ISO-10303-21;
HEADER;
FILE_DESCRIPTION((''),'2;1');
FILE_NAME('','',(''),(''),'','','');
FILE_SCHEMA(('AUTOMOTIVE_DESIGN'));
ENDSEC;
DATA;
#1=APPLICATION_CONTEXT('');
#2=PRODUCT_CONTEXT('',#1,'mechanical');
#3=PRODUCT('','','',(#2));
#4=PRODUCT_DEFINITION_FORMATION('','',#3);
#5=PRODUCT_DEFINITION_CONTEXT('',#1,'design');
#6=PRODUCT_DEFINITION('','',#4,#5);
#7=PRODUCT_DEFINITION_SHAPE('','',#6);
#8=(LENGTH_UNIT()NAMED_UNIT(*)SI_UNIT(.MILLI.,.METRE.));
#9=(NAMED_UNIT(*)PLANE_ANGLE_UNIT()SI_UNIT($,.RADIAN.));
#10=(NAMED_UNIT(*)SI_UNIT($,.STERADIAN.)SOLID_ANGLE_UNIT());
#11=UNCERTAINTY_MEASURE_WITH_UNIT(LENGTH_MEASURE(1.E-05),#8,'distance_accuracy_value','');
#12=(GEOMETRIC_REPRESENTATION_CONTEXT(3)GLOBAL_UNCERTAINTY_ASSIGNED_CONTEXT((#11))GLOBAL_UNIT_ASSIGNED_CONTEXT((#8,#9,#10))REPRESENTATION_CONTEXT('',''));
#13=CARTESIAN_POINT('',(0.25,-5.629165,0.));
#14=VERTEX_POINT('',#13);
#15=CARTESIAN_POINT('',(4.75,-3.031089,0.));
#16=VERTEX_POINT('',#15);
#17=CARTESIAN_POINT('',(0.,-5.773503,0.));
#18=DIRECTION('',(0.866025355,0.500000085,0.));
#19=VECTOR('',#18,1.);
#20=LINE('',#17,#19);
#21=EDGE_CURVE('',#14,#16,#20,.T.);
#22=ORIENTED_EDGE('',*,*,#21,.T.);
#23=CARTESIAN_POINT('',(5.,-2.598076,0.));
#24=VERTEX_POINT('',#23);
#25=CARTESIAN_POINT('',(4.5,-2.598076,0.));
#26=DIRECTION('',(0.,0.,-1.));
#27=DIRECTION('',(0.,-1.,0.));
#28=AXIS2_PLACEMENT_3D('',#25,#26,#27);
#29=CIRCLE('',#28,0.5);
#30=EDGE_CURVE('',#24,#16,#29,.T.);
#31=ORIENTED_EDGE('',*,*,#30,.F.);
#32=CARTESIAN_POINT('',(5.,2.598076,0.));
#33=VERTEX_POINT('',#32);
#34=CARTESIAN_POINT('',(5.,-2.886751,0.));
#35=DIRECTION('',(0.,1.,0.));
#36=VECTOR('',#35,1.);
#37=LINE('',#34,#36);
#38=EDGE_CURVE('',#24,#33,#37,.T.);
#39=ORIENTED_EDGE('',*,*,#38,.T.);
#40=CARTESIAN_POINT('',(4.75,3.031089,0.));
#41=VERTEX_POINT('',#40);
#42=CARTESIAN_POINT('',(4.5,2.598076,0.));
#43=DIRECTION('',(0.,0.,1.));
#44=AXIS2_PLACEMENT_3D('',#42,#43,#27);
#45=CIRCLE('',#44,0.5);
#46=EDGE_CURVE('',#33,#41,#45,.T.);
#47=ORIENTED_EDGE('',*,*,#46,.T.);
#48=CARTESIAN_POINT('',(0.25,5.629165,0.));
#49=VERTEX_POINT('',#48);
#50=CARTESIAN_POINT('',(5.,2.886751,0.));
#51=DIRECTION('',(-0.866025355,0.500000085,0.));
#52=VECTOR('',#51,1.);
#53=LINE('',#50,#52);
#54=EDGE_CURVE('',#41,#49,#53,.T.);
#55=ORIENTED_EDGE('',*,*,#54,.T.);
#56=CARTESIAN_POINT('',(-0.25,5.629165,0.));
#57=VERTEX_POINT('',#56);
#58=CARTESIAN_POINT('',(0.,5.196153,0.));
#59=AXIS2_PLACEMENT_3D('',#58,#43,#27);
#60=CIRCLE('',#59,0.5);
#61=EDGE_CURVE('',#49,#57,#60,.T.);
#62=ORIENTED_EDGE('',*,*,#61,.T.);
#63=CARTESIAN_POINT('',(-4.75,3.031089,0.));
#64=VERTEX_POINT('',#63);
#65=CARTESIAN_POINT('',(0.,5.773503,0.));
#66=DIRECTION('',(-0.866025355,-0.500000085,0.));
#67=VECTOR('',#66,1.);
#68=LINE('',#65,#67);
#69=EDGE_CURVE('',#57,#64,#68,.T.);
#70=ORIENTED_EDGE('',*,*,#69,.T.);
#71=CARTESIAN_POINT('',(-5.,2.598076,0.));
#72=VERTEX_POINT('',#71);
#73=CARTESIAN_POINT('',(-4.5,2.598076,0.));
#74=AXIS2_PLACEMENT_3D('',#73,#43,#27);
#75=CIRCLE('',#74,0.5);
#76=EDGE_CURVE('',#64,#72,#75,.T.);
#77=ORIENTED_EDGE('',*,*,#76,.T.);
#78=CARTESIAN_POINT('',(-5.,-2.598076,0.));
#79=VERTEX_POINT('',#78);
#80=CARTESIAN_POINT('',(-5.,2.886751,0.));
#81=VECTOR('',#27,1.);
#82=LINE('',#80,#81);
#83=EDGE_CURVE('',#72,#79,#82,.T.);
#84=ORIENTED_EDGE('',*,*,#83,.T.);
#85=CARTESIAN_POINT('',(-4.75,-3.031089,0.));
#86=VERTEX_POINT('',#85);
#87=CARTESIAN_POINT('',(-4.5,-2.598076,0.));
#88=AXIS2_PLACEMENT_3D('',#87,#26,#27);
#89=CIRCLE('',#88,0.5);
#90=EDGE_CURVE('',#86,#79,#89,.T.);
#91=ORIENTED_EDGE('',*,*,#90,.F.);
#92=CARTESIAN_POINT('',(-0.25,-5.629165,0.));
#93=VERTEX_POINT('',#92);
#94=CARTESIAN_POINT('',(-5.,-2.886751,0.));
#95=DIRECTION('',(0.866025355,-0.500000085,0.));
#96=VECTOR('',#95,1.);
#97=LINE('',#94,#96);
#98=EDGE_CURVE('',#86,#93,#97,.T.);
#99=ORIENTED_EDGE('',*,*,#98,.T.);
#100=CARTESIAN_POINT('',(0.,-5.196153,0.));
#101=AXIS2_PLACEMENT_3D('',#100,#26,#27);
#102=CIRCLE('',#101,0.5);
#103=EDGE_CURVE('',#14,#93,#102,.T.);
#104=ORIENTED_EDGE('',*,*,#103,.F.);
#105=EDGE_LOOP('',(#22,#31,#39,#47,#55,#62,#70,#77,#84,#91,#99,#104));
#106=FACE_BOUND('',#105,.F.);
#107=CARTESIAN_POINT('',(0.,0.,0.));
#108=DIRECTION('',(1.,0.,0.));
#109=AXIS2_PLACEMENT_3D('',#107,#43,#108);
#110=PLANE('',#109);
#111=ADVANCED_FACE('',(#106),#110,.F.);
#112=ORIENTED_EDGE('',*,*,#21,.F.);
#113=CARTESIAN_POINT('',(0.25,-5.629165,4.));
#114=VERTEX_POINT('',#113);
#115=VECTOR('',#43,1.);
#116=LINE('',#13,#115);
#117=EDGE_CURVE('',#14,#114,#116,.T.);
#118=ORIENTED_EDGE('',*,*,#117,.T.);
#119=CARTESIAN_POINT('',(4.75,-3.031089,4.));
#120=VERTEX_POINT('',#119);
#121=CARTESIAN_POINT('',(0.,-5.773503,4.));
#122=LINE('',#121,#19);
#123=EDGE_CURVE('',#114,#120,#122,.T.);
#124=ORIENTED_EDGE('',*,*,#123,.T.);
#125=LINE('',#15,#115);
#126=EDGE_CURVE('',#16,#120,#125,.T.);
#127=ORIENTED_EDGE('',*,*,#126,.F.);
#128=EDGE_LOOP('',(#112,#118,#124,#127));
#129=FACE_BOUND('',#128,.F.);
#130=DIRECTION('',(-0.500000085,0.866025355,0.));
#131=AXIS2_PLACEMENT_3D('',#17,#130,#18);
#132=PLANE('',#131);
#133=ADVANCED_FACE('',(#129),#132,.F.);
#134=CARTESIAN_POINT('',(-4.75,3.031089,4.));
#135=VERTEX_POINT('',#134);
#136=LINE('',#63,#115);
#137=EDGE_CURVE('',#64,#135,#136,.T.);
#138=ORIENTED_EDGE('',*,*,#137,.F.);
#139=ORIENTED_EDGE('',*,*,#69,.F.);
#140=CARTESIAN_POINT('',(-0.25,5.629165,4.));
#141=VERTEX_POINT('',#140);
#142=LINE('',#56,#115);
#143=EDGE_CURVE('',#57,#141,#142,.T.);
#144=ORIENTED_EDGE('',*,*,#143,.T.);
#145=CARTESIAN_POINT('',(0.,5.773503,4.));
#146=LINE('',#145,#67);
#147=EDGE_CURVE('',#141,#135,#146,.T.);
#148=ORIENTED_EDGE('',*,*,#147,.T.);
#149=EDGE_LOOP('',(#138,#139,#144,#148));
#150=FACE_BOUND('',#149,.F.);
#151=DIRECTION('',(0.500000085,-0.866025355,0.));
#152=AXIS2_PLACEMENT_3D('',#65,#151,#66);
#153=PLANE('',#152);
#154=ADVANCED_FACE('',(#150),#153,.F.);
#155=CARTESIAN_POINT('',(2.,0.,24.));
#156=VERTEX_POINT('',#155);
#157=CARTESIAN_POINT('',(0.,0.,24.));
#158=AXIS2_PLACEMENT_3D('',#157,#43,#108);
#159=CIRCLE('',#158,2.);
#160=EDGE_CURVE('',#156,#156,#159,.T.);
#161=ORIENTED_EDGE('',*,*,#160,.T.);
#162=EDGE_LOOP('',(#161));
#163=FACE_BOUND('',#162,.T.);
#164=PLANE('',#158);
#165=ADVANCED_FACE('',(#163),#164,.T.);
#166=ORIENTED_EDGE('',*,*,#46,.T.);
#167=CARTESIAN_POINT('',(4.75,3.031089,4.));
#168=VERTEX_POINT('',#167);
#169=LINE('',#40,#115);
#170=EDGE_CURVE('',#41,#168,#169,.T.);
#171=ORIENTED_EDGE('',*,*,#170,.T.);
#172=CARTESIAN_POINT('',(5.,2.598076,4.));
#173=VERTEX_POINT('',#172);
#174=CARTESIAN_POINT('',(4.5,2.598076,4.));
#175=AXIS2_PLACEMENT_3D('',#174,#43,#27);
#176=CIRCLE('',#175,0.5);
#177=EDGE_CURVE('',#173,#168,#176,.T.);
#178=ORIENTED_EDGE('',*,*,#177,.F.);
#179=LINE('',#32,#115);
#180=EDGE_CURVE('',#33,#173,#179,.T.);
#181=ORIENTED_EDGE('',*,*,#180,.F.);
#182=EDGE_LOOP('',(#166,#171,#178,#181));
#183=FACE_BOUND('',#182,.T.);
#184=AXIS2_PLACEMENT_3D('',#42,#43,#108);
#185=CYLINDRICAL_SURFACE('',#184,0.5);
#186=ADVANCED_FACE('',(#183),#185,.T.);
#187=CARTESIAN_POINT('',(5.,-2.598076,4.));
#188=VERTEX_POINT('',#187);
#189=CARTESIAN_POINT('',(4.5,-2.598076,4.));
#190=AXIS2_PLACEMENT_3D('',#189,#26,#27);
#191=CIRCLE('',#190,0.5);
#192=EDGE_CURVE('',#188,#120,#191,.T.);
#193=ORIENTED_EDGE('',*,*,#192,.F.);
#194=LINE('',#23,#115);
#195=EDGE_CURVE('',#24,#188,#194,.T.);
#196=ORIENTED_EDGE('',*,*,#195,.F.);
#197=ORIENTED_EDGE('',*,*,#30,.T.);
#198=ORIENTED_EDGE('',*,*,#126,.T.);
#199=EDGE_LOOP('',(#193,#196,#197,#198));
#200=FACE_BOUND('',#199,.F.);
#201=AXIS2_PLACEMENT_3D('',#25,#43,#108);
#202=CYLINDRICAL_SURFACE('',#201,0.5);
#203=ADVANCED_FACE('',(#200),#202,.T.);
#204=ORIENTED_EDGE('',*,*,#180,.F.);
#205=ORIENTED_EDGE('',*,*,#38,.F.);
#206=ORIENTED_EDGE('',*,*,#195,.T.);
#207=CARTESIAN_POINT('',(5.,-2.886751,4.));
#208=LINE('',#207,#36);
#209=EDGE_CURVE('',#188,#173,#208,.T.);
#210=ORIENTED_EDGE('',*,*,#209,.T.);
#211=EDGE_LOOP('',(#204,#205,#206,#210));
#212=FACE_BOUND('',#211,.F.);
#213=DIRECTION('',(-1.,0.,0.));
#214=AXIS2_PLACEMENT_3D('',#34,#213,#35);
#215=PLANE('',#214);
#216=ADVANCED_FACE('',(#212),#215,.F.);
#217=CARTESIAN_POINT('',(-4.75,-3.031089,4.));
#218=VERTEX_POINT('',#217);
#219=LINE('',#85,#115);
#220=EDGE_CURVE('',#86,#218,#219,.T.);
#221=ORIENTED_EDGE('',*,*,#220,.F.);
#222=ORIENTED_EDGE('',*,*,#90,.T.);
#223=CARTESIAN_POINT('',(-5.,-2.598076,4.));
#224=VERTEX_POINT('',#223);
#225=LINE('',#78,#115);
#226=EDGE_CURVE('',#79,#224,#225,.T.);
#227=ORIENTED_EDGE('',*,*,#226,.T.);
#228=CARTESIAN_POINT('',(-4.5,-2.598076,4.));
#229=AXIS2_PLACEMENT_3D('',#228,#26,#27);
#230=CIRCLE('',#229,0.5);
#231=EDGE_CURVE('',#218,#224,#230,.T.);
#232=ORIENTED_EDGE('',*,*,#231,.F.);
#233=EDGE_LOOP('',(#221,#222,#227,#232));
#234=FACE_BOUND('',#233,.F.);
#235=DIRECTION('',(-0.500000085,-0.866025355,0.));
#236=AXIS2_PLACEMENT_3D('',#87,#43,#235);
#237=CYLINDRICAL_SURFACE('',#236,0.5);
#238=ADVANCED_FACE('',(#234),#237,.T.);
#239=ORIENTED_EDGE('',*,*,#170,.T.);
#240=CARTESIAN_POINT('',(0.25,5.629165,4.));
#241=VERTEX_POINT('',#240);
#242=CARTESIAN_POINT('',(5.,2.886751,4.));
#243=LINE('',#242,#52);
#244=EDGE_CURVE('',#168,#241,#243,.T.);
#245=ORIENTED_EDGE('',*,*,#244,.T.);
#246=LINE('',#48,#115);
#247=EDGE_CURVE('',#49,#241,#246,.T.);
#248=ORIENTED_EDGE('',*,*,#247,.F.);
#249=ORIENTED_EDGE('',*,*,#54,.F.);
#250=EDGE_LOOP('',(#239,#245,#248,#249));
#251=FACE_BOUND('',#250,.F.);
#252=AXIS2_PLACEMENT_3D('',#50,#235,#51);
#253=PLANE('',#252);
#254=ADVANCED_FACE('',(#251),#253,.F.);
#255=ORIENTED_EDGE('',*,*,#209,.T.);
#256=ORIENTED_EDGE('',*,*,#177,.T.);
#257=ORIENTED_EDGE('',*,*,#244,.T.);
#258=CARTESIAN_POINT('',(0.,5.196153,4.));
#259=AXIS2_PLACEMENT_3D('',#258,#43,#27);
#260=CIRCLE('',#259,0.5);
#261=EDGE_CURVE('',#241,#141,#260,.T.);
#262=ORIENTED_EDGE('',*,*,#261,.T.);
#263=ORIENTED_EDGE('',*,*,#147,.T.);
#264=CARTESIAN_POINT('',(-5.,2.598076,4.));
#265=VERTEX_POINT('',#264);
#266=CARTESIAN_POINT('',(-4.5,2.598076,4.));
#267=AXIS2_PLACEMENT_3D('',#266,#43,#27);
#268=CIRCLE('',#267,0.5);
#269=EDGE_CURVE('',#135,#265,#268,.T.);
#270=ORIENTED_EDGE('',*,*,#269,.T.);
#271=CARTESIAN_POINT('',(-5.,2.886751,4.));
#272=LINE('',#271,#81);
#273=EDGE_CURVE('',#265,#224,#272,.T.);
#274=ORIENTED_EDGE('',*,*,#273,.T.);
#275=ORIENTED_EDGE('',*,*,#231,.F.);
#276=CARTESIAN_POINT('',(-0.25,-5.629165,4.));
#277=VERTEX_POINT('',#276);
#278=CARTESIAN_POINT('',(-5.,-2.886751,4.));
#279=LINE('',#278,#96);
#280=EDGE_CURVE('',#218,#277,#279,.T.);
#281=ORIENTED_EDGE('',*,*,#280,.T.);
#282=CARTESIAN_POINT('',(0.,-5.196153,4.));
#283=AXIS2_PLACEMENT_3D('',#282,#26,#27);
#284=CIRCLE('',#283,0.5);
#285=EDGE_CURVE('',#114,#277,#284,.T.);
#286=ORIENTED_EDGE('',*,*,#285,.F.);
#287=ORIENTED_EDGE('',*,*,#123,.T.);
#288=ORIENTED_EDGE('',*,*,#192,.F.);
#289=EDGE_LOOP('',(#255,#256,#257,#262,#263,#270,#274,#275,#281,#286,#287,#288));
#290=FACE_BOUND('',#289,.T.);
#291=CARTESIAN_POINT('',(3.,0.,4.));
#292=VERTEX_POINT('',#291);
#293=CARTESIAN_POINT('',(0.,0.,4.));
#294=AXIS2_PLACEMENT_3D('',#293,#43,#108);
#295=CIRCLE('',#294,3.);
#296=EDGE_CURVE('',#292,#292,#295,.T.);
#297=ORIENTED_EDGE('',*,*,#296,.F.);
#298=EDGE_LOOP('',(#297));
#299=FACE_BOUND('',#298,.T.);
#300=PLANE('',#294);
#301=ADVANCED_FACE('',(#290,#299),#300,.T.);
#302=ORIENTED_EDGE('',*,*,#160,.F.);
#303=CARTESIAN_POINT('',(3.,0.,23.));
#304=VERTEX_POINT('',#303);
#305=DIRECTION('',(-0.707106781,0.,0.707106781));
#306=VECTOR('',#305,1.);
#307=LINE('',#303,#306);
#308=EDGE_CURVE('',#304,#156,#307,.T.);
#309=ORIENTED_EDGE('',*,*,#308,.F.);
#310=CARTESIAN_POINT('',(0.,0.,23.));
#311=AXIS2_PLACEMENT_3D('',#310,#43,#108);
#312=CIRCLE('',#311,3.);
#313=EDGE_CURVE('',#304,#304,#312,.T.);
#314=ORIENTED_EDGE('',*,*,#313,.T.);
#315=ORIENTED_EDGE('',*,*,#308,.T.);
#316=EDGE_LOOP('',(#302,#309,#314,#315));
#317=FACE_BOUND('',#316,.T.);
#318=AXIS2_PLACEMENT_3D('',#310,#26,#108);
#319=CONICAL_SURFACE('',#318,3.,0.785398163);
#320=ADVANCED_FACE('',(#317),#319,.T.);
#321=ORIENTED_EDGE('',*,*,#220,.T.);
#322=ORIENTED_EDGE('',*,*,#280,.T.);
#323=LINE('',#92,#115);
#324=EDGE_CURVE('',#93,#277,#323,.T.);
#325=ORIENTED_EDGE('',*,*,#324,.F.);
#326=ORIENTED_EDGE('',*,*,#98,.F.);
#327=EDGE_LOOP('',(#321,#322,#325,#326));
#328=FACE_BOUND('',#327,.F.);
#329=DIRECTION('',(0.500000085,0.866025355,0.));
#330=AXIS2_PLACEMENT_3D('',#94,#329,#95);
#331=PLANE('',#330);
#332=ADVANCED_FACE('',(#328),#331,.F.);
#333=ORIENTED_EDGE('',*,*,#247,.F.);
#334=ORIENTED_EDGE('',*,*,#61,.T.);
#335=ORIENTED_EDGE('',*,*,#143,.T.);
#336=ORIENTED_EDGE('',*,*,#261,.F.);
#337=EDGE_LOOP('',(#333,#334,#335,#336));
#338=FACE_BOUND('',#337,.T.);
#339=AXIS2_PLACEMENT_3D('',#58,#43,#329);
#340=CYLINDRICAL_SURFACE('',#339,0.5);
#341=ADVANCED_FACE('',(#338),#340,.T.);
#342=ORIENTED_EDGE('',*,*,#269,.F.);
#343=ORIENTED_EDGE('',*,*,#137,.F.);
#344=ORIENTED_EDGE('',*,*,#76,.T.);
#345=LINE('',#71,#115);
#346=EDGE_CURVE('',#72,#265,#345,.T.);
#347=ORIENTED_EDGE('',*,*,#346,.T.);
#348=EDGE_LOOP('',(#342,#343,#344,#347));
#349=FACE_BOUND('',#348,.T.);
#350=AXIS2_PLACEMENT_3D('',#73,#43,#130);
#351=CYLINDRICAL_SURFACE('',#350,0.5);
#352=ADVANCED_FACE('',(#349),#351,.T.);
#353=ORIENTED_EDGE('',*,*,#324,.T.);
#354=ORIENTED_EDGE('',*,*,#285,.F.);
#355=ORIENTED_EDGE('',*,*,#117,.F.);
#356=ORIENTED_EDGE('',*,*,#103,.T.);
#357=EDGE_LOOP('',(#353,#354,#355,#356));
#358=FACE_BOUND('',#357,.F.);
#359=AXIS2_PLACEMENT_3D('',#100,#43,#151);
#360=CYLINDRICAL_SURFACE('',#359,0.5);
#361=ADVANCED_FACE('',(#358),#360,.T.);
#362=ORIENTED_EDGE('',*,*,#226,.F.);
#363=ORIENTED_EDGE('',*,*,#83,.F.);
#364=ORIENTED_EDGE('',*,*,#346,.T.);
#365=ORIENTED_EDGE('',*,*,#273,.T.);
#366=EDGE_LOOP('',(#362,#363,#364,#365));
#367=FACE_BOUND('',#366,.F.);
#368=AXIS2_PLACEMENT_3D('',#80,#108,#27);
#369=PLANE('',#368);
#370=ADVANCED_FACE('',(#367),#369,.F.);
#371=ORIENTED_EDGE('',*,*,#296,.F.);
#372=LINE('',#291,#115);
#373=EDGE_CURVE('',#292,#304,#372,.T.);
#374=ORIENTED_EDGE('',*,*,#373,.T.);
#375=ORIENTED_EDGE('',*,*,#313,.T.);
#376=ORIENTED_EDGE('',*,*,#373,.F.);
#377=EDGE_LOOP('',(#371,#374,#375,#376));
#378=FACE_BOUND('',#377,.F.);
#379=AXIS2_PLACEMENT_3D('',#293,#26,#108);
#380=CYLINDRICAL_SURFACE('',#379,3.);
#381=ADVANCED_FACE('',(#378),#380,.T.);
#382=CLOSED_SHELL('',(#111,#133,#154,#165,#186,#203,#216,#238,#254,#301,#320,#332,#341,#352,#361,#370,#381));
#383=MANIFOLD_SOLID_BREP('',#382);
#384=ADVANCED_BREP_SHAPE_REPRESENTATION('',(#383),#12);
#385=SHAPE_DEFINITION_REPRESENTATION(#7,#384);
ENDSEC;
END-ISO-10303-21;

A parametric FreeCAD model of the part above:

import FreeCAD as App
import Part
import Sketcher
Q = App.Units.Quantity


def edges_at(feature, points):
    """Names of the edges that pass closest to the given points."""
    edges = feature.Shape.Edges
    near = lambda p: min(range(len(edges)), key=lambda i: edges[i].distToShape(Part.Vertex(*p))[0])
    return sorted({f"Edge{near(p) + 1}" for p in points})


def add_polygon(sketch, points):
    """Adds a closed chain of lines whose ends are joined by coincident constraints."""
    first, n = sketch.GeometryCount, len(points)
    for a, b in zip(points, points[1:] + points[:1]):
        sketch.addGeometry(Part.LineSegment(App.Vector(*a, 0), App.Vector(*b, 0)), False)
    for i in range(n):
        sketch.addConstraint(Sketcher.Constraint("Coincident", first + i, 2, first + (i + 1) % n, 1))

doc = App.newDocument("Part")
body = doc.addObject("PartDesign::Body", "Body")

# Sketch on XY plane
sketch1 = body.newObject("Sketcher::SketchObject", "Sketch")
sketch1.AttachmentSupport = (doc.getObject("XY_Plane"), [""])
sketch1.MapMode = "FlatFace"
add_polygon(sketch1, [(5, -3), (5, 3), (0, 6), (-5, 3), (-5, -3), (0, -6)])  # lines 0-5
sketch1.addConstraint([
    Sketcher.Constraint("Vertical", 0),
    Sketcher.Constraint("Vertical", 3),
    Sketcher.Constraint("Symmetric", 0, 2, 3, 2, -1, 1),
    Sketcher.Constraint("Symmetric", 1, 2, 4, 2, -1, 1),
    Sketcher.Constraint("PointOnObject", 1, 2, -2),
    Sketcher.Constraint("Parallel", 2, 5),
    Sketcher.Constraint("Horizontal", 0, 2, 2, 2),
    Sketcher.Constraint("Angle", 1, Q("149.999994 deg")),
    Sketcher.Constraint("DistanceX", -1, 1, 0, 2, 5.0),
    Sketcher.Constraint("DistanceY", 0, 1, 0, 2, 5.773502),
])
pad1 = body.newObject("PartDesign::Pad", "Pad")
pad1.Profile = sketch1
pad1.Length = 4

# Sketch on XY plane
sketch2 = body.newObject("Sketcher::SketchObject", "Sketch001")
sketch2.AttachmentSupport = (doc.getObject("XY_Plane"), [""])
sketch2.MapMode = "FlatFace"
sketch2.AttachmentOffset = App.Placement(App.Vector(0, 0, 4), App.Rotation())
sketch2.addGeometry(Part.Circle(App.Vector(0, 0, 0), App.Vector(0, 0, 1), 3), False)
sketch2.addConstraint([
    Sketcher.Constraint("Coincident", 0, 3, -1, 1),
    Sketcher.Constraint("Diameter", 0, 6.0),
])
pad2 = body.newObject("PartDesign::Pad", "Pad001")
pad2.Profile = sketch2
pad2.Length = 20
doc.recompute()

chamfer = body.newObject("PartDesign::Chamfer", "Chamfer")
chamfer.Base = (pad2, edges_at(pad2, [(-3, 0, 24)]))
chamfer.Size = 1
doc.recompute()

fillet = body.newObject("PartDesign::Fillet", "Fillet")
fillet.Base = (chamfer, edges_at(chamfer, [
    (0, -5.774, 2),
    (5, -2.887, 2),
    (5, 2.887, 2),
    (-5, -2.887, 2),
    (0, 5.774, 2),
    (-5, 2.887, 2),
]))
fillet.Radius = 0.5

doc.recompute()
